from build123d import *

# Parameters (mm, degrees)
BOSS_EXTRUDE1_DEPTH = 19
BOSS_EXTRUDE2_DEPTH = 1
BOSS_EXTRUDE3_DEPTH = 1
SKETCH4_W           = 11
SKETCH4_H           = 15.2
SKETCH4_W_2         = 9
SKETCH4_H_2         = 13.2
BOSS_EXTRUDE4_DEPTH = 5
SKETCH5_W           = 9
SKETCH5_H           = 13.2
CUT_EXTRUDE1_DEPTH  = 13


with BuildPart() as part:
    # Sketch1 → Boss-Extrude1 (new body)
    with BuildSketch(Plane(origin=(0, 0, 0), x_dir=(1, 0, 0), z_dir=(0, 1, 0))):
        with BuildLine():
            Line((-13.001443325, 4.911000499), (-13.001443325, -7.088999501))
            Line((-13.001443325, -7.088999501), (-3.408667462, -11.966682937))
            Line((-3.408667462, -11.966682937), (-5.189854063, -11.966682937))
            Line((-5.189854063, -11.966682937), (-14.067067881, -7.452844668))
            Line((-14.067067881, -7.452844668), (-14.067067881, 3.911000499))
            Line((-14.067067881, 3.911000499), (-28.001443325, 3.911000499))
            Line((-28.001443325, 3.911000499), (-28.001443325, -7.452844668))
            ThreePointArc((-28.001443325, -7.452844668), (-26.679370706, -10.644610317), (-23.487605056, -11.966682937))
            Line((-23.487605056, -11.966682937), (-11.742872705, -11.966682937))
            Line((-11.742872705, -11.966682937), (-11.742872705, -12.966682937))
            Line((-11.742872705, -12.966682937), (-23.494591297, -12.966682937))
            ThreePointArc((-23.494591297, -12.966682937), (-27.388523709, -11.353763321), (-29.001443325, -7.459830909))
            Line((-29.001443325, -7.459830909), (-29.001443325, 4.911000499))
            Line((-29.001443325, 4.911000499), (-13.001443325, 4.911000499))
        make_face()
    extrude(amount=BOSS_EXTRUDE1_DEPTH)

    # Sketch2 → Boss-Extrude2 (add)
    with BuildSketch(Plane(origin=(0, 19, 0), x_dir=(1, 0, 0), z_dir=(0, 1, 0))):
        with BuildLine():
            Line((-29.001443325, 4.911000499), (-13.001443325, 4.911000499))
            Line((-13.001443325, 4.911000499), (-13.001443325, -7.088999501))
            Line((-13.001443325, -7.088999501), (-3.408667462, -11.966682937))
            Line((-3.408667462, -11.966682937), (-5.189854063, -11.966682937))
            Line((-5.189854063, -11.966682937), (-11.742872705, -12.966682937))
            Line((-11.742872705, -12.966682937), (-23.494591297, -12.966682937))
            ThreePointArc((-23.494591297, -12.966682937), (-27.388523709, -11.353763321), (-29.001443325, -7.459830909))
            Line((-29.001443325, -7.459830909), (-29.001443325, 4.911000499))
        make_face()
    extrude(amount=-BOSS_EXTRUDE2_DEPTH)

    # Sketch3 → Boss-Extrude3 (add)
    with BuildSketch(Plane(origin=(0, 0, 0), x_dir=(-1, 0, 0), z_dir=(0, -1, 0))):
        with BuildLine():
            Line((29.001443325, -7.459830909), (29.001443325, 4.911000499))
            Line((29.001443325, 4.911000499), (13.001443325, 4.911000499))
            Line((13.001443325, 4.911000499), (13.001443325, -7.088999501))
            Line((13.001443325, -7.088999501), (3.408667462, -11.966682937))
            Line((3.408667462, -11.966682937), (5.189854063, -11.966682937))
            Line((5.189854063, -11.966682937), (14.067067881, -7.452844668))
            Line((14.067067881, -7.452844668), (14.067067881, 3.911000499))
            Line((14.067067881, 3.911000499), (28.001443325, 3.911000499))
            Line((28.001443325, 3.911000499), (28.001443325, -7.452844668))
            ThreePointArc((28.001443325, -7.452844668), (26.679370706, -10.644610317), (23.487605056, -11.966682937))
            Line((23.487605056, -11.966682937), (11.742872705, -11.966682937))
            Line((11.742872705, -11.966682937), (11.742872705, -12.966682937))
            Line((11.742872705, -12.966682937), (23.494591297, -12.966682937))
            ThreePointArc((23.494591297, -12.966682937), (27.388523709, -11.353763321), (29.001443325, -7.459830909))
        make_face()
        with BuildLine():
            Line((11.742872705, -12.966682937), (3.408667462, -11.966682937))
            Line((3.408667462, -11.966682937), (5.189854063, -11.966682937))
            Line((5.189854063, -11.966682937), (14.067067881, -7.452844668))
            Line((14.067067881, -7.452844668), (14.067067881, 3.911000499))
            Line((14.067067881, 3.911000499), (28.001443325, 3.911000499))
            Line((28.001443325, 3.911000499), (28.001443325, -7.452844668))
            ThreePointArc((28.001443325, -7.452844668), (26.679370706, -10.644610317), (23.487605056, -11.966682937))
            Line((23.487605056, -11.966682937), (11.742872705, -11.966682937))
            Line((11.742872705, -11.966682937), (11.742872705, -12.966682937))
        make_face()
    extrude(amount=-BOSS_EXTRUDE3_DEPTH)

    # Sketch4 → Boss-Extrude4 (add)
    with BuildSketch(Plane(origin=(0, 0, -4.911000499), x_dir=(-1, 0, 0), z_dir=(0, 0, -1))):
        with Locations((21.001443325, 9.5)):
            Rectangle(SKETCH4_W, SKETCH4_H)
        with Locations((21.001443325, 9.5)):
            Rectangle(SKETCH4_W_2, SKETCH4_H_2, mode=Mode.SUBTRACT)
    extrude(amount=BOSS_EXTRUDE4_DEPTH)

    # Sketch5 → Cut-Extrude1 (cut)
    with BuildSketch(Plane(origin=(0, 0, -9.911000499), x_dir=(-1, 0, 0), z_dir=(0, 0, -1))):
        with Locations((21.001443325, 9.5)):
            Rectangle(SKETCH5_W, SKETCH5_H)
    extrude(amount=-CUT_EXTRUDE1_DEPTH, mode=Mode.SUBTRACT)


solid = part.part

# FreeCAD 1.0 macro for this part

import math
import FreeCAD as App
import Part
import Sketcher


def add_polygon(sketch, points):
    """Adds a closed chain of lines whose ends are joined by coincident constraints."""
    first, n = sketch.GeometryCount, len(points)
    for a, b in zip(points, points[1:] + points[:1]):
        sketch.addGeometry(Part.LineSegment(App.Vector(*a, 0), App.Vector(*b, 0)), False)
    for i in range(n):
        sketch.addConstraint(Sketcher.Constraint("Coincident", first + i, 2, first + (i + 1) % n, 1))

doc = App.newDocument("Part")
body = doc.addObject("PartDesign::Body", "Body")

# Sketch on XZ plane
sketch1 = body.newObject("Sketcher::SketchObject", "Sketch")
sketch1.AttachmentSupport = (doc.getObject("XZ_Plane"), [""])
sketch1.MapMode = "FlatFace"
sketch1.addGeometry(Part.LineSegment(App.Vector(-13, 7.1, 0), App.Vector(-13, -4.9, 0)), False)
sketch1.addGeometry(Part.LineSegment(App.Vector(-13, -4.9, 0), App.Vector(-29, -4.9, 0)), False)
sketch1.addGeometry(Part.LineSegment(App.Vector(-29, -4.9, 0), App.Vector(-29, 7.5, 0)), False)
sketch1.addGeometry(Part.ArcOfCircle(Part.Circle(App.Vector(-23.5, 7.5, 0), App.Vector(0, 0, 1), 5.5), math.radians(90), math.radians(180)), False)
sketch1.addGeometry(Part.LineSegment(App.Vector(-23.5, 13, 0), App.Vector(-11.7, 13, 0)), False)
sketch1.addGeometry(Part.LineSegment(App.Vector(-11.7, 13, 0), App.Vector(-11.7, 12, 0)), False)
sketch1.addGeometry(Part.LineSegment(App.Vector(-11.7, 12, 0), App.Vector(-23.5, 12, 0)), False)
sketch1.addGeometry(Part.ArcOfCircle(Part.Circle(App.Vector(-23.5, 7.5, 0), App.Vector(0, 0, 1), 4.5), math.radians(90), math.radians(180)), False)
sketch1.addGeometry(Part.LineSegment(App.Vector(-28, 7.5, 0), App.Vector(-28, -3.9, 0)), False)
sketch1.addGeometry(Part.LineSegment(App.Vector(-28, -3.9, 0), App.Vector(-14.1, -3.9, 0)), False)
sketch1.addGeometry(Part.LineSegment(App.Vector(-14.1, -3.9, 0), App.Vector(-14.1, 7.5, 0)), False)
sketch1.addGeometry(Part.LineSegment(App.Vector(-14.1, 7.5, 0), App.Vector(-5.2, 12, 0)), False)
sketch1.addGeometry(Part.LineSegment(App.Vector(-5.2, 12, 0), App.Vector(-3.4, 12, 0)), False)
sketch1.addGeometry(Part.LineSegment(App.Vector(-3.4, 12, 0), App.Vector(-13, 7.1, 0)), False)
sketch1.addConstraint(Sketcher.Constraint("Coincident", 0, 2, 1, 1))
sketch1.addConstraint(Sketcher.Constraint("Coincident", 1, 2, 2, 1))
sketch1.addConstraint(Sketcher.Constraint("Tangent", 2, 2, 3, 2))
sketch1.addConstraint(Sketcher.Constraint("Tangent", 3, 1, 4, 1))
sketch1.addConstraint(Sketcher.Constraint("Coincident", 4, 2, 5, 1))
sketch1.addConstraint(Sketcher.Constraint("Coincident", 5, 2, 6, 1))
sketch1.addConstraint(Sketcher.Constraint("Tangent", 6, 2, 7, 1))
sketch1.addConstraint(Sketcher.Constraint("Tangent", 7, 2, 8, 1))
sketch1.addConstraint(Sketcher.Constraint("Coincident", 8, 2, 9, 1))
sketch1.addConstraint(Sketcher.Constraint("Coincident", 9, 2, 10, 1))
sketch1.addConstraint(Sketcher.Constraint("Coincident", 10, 2, 11, 1))
sketch1.addConstraint(Sketcher.Constraint("Coincident", 11, 2, 12, 1))
sketch1.addConstraint(Sketcher.Constraint("Coincident", 12, 2, 13, 1))
sketch1.addConstraint(Sketcher.Constraint("Coincident", 13, 2, 0, 1))
sketch1.addConstraint(Sketcher.Constraint("Vertical", 0))
sketch1.addConstraint(Sketcher.Constraint("Horizontal", 1))
sketch1.addConstraint(Sketcher.Constraint("Vertical", 2))
sketch1.addConstraint(Sketcher.Constraint("Horizontal", 4))
sketch1.addConstraint(Sketcher.Constraint("Vertical", 5))
sketch1.addConstraint(Sketcher.Constraint("Horizontal", 6))
sketch1.addConstraint(Sketcher.Constraint("Vertical", 8))
sketch1.addConstraint(Sketcher.Constraint("Horizontal", 9))
sketch1.addConstraint(Sketcher.Constraint("Vertical", 10))
sketch1.addConstraint(Sketcher.Constraint("Horizontal", 12))
sketch1.addConstraint(Sketcher.Constraint("Parallel", 11, 13))
sketch1.addConstraint(Sketcher.Constraint("Horizontal", 7, 2, 10, 2))
sketch1.addConstraint(Sketcher.Constraint("Horizontal", 6, 2, 11, 2))
sketch1.addConstraint(Sketcher.Constraint("DistanceX", 1, 2, 1, 1, 16.0))
sketch1.addConstraint(Sketcher.Constraint("DistanceY", 0, 2, 0, 1, 12.0))
sketch1.addConstraint(Sketcher.Constraint("DistanceY", 5, 2, 5, 1, 1.0))
sketch1.addConstraint(Sketcher.Constraint("DistanceX", 2, 2, 7, 2, 1.0))
sketch1.addConstraint(Sketcher.Constraint("DistanceY", 1, 2, 8, 2, 1.0))
sketch1.addConstraint(Sketcher.Constraint("Radius", 7, 4.513838))
sketch1.addConstraint(Sketcher.Constraint("DistanceY", 0, 2, -1, 1, 4.911))
sketch1.addConstraint(Sketcher.Constraint("Radius", 3, 5.506852))
sketch1.addConstraint(Sketcher.Constraint("Distance", 11, 9.958899))
sketch1.addConstraint(Sketcher.Constraint("DistanceX", 4, 1, 4, 2, 11.751719))
sketch1.addConstraint(Sketcher.Constraint("DistanceY", 2, 1, 2, 2, 12.370831))
sketch1.addConstraint(Sketcher.Constraint("DistanceX", 10, 2, 12, 2, 10.6584))
sketch1.addConstraint(Sketcher.Constraint("DistanceX", 3, 3, -1, 1, 23.494591))
pad1 = body.newObject("PartDesign::Pad", "Pad")
pad1.Profile = sketch1
pad1.Length = 19
pad1.Reversed = True

# Sketch on XZ plane
sketch2 = body.newObject("Sketcher::SketchObject", "Sketch001")
sketch2.AttachmentSupport = (doc.getObject("XZ_Plane"), [""])
sketch2.MapMode = "FlatFace"
sketch2.AttachmentOffset = App.Placement(App.Vector(0, 0, -19), App.Rotation())
sketch2.addGeometry(Part.LineSegment(App.Vector(-13, -4.9, 0), App.Vector(-29, -4.9, 0)), False)
sketch2.addGeometry(Part.LineSegment(App.Vector(-29, -4.9, 0), App.Vector(-29, 7.5, 0)), False)
sketch2.addGeometry(Part.ArcOfCircle(Part.Circle(App.Vector(-23.5, 7.5, 0), App.Vector(0, 0, 1), 5.5), math.radians(90), math.radians(180)), False)
sketch2.addGeometry(Part.LineSegment(App.Vector(-23.5, 13, 0), App.Vector(-11.7, 13, 0)), False)
sketch2.addGeometry(Part.LineSegment(App.Vector(-11.7, 13, 0), App.Vector(-5.2, 12, 0)), False)
sketch2.addGeometry(Part.LineSegment(App.Vector(-5.2, 12, 0), App.Vector(-3.4, 12, 0)), False)
sketch2.addGeometry(Part.LineSegment(App.Vector(-3.4, 12, 0), App.Vector(-13, 7.1, 0)), False)
sketch2.addGeometry(Part.LineSegment(App.Vector(-13, 7.1, 0), App.Vector(-13, -4.9, 0)), False)
sketch2.addConstraint(Sketcher.Constraint("Coincident", 0, 2, 1, 1))
sketch2.addConstraint(Sketcher.Constraint("Tangent", 1, 2, 2, 2))
sketch2.addConstraint(Sketcher.Constraint("Tangent", 2, 1, 3, 1))
sketch2.addConstraint(Sketcher.Constraint("Coincident", 3, 2, 4, 1))
sketch2.addConstraint(Sketcher.Constraint("Coincident", 4, 2, 5, 1))
sketch2.addConstraint(Sketcher.Constraint("Coincident", 5, 2, 6, 1))
sketch2.addConstraint(Sketcher.Constraint("Coincident", 6, 2, 7, 1))
sketch2.addConstraint(Sketcher.Constraint("Coincident", 7, 2, 0, 1))
sketch2.addConstraint(Sketcher.Constraint("Horizontal", 0))
sketch2.addConstraint(Sketcher.Constraint("Vertical", 1))
sketch2.addConstraint(Sketcher.Constraint("Horizontal", 3))
sketch2.addConstraint(Sketcher.Constraint("Horizontal", 5))
sketch2.addConstraint(Sketcher.Constraint("Vertical", 7))
sketch2.addConstraint(Sketcher.Constraint("DistanceX", 0, 2, 0, 1, 16.0))
sketch2.addConstraint(Sketcher.Constraint("DistanceY", 7, 2, 7, 1, 12.0))
sketch2.addConstraint(Sketcher.Constraint("DistanceY", 4, 2, 3, 2, 1.0))
sketch2.addConstraint(Sketcher.Constraint("DistanceY", 0, 2, -1, 1, 4.911))
sketch2.addConstraint(Sketcher.Constraint("Radius", 2, 5.506852))
sketch2.addConstraint(Sketcher.Constraint("DistanceX", 3, 1, 3, 2, 11.751719))
sketch2.addConstraint(Sketcher.Constraint("DistanceY", 1, 1, 1, 2, 12.370831))
sketch2.addConstraint(Sketcher.Constraint("Distance", 4, 6.62888))
sketch2.addConstraint(Sketcher.Constraint("Distance", 6, 10.761652))
sketch2.addConstraint(Sketcher.Constraint("DistanceX", 2, 3, -1, 1, 23.494591))
pad2 = body.newObject("PartDesign::Pad", "Pad001")
pad2.Profile = sketch2
pad2.Length = 1

# Sketch on XZ plane
sketch3 = body.newObject("Sketcher::SketchObject", "Sketch002")
sketch3.AttachmentSupport = (doc.getObject("XZ_Plane"), [""])
sketch3.MapMode = "FlatFace"
sketch3.addGeometry(Part.LineSegment(App.Vector(-29, 7, 0), App.Vector(-29, -5, 0)), False)
sketch3.addGeometry(Part.LineSegment(App.Vector(-29, -5, 0), App.Vector(-13, -5, 0)), False)
sketch3.addGeometry(Part.LineSegment(App.Vector(-13, -5, 0), App.Vector(-13, 7, 0)), False)
sketch3.addGeometry(Part.LineSegment(App.Vector(-13, 7, 0), App.Vector(-3, 12, 0)), False)
sketch3.addGeometry(Part.LineSegment(App.Vector(-3, 12, 0), App.Vector(-12, 13, 0)), False)
sketch3.addGeometry(Part.LineSegment(App.Vector(-12, 13, 0), App.Vector(-23, 13, 0)), False)
sketch3.addGeometry(Part.ArcOfCircle(Part.Circle(App.Vector(-23, 7, 0), App.Vector(0, 0, 1), 6), math.radians(90), math.radians(180)), False)
sketch3.addConstraint(Sketcher.Constraint("Coincident", 0, 2, 1, 1))
sketch3.addConstraint(Sketcher.Constraint("Coincident", 1, 2, 2, 1))
sketch3.addConstraint(Sketcher.Constraint("Coincident", 2, 2, 3, 1))
sketch3.addConstraint(Sketcher.Constraint("Coincident", 3, 2, 4, 1))
sketch3.addConstraint(Sketcher.Constraint("Coincident", 4, 2, 5, 1))
sketch3.addConstraint(Sketcher.Constraint("Tangent", 5, 2, 6, 1))
sketch3.addConstraint(Sketcher.Constraint("Tangent", 6, 2, 0, 1))
sketch3.addConstraint(Sketcher.Constraint("Vertical", 0))
sketch3.addConstraint(Sketcher.Constraint("Horizontal", 1))
sketch3.addConstraint(Sketcher.Constraint("Vertical", 2))
sketch3.addConstraint(Sketcher.Constraint("Horizontal", 5))
sketch3.addConstraint(Sketcher.Constraint("DistanceX", 1, 1, 1, 2, 16.0))
sketch3.addConstraint(Sketcher.Constraint("DistanceY", 2, 1, 2, 2, 12.0))
sketch3.addConstraint(Sketcher.Constraint("DistanceY", 3, 2, 4, 2, 1.0))
sketch3.addConstraint(Sketcher.Constraint("DistanceY", 0, 2, -1, 1, 4.911))
sketch3.addConstraint(Sketcher.Constraint("Radius", 6, 5.506852))
sketch3.addConstraint(Sketcher.Constraint("DistanceX", 5, 2, 5, 1, 11.751719))
sketch3.addConstraint(Sketcher.Constraint("DistanceY", 0, 2, 0, 1, 12.370831))
sketch3.addConstraint(Sketcher.Constraint("Distance", 3, 10.761652))
sketch3.addConstraint(Sketcher.Constraint("DistanceX", 6, 3, -1, 1, 23.494591))
pad3 = body.newObject("PartDesign::Pad", "Pad002")
pad3.Profile = sketch3
pad3.Length = 1
pad3.Reversed = True

# Sketch on XY plane
sketch4 = body.newObject("Sketcher::SketchObject", "Sketch003")
sketch4.AttachmentSupport = (doc.getObject("XY_Plane"), [""])
sketch4.MapMode = "FlatFace"
sketch4.AttachmentOffset = App.Placement(App.Vector(0, 0, -4.911), App.Rotation())
add_polygon(sketch4, [(-16, 17), (-16, 2), (-27, 2), (-27, 17)])  # lines 0-3
add_polygon(sketch4, [(-26, 3), (-17, 3), (-17, 16), (-26, 16)])  # lines 4-7
sketch4.addConstraint(Sketcher.Constraint("Vertical", 0))
sketch4.addConstraint(Sketcher.Constraint("Horizontal", 1))
sketch4.addConstraint(Sketcher.Constraint("Vertical", 2))
sketch4.addConstraint(Sketcher.Constraint("Horizontal", 3))
sketch4.addConstraint(Sketcher.Constraint("Horizontal", 4))
sketch4.addConstraint(Sketcher.Constraint("Vertical", 5))
sketch4.addConstraint(Sketcher.Constraint("Horizontal", 6))
sketch4.addConstraint(Sketcher.Constraint("Vertical", 7))
sketch4.addConstraint(Sketcher.Constraint("DistanceX", 1, 2, 1, 1, 11.0))
sketch4.addConstraint(Sketcher.Constraint("DistanceX", 4, 1, 4, 2, 9.0))
sketch4.addConstraint(Sketcher.Constraint("DistanceY", 0, 2, 0, 1, 15.2))
sketch4.addConstraint(Sketcher.Constraint("DistanceY", 5, 1, 5, 2, 13.2))
sketch4.addConstraint(Sketcher.Constraint("DistanceX", 4, 2, 0, 2, 1.0))
sketch4.addConstraint(Sketcher.Constraint("DistanceY", 0, 2, 4, 2, 1.0))
sketch4.addConstraint(Sketcher.Constraint("DistanceY", -1, 1, 0, 2, 1.9))
sketch4.addConstraint(Sketcher.Constraint("DistanceX", 0, 2, -1, 1, 15.501443))
pad4 = body.newObject("PartDesign::Pad", "Pad003")
pad4.Profile = sketch4
pad4.Length = 5
pad4.Reversed = True

# Sketch on XY plane
sketch5 = body.newObject("Sketcher::SketchObject", "Sketch004")
sketch5.AttachmentSupport = (doc.getObject("XY_Plane"), [""])
sketch5.MapMode = "FlatFace"
sketch5.AttachmentOffset = App.Placement(App.Vector(0, 0, -9.911), App.Rotation())
add_polygon(sketch5, [(-17, 16), (-17, 3), (-26, 3), (-26, 16)])  # lines 0-3
sketch5.addConstraint(Sketcher.Constraint("Vertical", 0))
sketch5.addConstraint(Sketcher.Constraint("Horizontal", 1))
sketch5.addConstraint(Sketcher.Constraint("Vertical", 2))
sketch5.addConstraint(Sketcher.Constraint("Horizontal", 3))
sketch5.addConstraint(Sketcher.Constraint("DistanceX", 1, 2, 1, 1, 9.0))
sketch5.addConstraint(Sketcher.Constraint("DistanceY", 0, 2, 0, 1, 13.2))
sketch5.addConstraint(Sketcher.Constraint("DistanceY", -1, 1, 0, 2, 2.9))
sketch5.addConstraint(Sketcher.Constraint("DistanceX", 0, 2, -1, 1, 16.501443))
pocket1 = body.newObject("PartDesign::Pocket", "Pocket")
pocket1.Profile = sketch5
pocket1.Length = 13
pocket1.Reversed = True

doc.recompute()
